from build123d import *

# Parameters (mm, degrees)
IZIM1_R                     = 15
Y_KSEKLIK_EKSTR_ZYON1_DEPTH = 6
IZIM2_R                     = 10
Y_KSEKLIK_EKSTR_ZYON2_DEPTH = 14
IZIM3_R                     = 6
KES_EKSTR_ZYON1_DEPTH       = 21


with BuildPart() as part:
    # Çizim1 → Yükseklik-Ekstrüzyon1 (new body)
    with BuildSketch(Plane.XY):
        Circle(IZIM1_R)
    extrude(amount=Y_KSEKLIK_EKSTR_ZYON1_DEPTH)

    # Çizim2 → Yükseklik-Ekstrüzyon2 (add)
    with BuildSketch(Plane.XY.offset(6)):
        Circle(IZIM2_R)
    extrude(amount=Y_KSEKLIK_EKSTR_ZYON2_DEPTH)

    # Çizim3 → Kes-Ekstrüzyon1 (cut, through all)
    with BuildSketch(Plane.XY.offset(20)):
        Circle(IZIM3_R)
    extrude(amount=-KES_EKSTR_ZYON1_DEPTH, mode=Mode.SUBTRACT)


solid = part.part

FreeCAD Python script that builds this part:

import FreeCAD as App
import Part
import Sketcher
from FreeCAD import Vector

doc = App.newDocument("Part")
body = doc.addObject("PartDesign::Body", "Body")

sketch1 = body.newObject("Sketcher::SketchObject", "Sketch")
sketch1.AttachmentSupport = (doc.getObject("XY_Plane"), [""])
sketch1.MapMode = "FlatFace"
sketch1.addGeometry(Part.Circle(Vector(0, 0, 0), Vector(0, 0, 1), 15), False)
sketch1.addConstraint(Sketcher.Constraint("Coincident", 0, 3, -1, 1))
sketch1.addConstraint(Sketcher.Constraint("Diameter", 0, 30.0))
pad1 = body.newObject("PartDesign::Pad", "Pad")
pad1.Profile = sketch1
pad1.Length = 6

sketch2 = body.newObject("Sketcher::SketchObject", "Sketch001")
sketch2.AttachmentSupport = (doc.getObject("XY_Plane"), [""])
sketch2.MapMode = "FlatFace"
sketch2.AttachmentOffset = App.Placement(Vector(0, 0, 6), App.Rotation())
sketch2.addGeometry(Part.Circle(Vector(0, 0, 0), Vector(0, 0, 1), 10), False)
sketch2.addConstraint(Sketcher.Constraint("Coincident", 0, 3, -1, 1))
sketch2.addConstraint(Sketcher.Constraint("Diameter", 0, 20.0))
pad2 = body.newObject("PartDesign::Pad", "Pad001")
pad2.Profile = sketch2
pad2.Length = 14

sketch3 = body.newObject("Sketcher::SketchObject", "Sketch002")
sketch3.AttachmentSupport = (doc.getObject("XY_Plane"), [""])
sketch3.MapMode = "FlatFace"
sketch3.AttachmentOffset = App.Placement(Vector(0, 0, 20), App.Rotation())
sketch3.addGeometry(Part.Circle(Vector(0, 0, 0), Vector(0, 0, 1), 6), False)
sketch3.addConstraint(Sketcher.Constraint("Coincident", 0, 3, -1, 1))
sketch3.addConstraint(Sketcher.Constraint("Diameter", 0, 12.0))
pocket1 = body.newObject("PartDesign::Pocket", "Pocket")
pocket1.Profile = sketch3
pocket1.Type = "ThroughAll"

doc.recompute()
